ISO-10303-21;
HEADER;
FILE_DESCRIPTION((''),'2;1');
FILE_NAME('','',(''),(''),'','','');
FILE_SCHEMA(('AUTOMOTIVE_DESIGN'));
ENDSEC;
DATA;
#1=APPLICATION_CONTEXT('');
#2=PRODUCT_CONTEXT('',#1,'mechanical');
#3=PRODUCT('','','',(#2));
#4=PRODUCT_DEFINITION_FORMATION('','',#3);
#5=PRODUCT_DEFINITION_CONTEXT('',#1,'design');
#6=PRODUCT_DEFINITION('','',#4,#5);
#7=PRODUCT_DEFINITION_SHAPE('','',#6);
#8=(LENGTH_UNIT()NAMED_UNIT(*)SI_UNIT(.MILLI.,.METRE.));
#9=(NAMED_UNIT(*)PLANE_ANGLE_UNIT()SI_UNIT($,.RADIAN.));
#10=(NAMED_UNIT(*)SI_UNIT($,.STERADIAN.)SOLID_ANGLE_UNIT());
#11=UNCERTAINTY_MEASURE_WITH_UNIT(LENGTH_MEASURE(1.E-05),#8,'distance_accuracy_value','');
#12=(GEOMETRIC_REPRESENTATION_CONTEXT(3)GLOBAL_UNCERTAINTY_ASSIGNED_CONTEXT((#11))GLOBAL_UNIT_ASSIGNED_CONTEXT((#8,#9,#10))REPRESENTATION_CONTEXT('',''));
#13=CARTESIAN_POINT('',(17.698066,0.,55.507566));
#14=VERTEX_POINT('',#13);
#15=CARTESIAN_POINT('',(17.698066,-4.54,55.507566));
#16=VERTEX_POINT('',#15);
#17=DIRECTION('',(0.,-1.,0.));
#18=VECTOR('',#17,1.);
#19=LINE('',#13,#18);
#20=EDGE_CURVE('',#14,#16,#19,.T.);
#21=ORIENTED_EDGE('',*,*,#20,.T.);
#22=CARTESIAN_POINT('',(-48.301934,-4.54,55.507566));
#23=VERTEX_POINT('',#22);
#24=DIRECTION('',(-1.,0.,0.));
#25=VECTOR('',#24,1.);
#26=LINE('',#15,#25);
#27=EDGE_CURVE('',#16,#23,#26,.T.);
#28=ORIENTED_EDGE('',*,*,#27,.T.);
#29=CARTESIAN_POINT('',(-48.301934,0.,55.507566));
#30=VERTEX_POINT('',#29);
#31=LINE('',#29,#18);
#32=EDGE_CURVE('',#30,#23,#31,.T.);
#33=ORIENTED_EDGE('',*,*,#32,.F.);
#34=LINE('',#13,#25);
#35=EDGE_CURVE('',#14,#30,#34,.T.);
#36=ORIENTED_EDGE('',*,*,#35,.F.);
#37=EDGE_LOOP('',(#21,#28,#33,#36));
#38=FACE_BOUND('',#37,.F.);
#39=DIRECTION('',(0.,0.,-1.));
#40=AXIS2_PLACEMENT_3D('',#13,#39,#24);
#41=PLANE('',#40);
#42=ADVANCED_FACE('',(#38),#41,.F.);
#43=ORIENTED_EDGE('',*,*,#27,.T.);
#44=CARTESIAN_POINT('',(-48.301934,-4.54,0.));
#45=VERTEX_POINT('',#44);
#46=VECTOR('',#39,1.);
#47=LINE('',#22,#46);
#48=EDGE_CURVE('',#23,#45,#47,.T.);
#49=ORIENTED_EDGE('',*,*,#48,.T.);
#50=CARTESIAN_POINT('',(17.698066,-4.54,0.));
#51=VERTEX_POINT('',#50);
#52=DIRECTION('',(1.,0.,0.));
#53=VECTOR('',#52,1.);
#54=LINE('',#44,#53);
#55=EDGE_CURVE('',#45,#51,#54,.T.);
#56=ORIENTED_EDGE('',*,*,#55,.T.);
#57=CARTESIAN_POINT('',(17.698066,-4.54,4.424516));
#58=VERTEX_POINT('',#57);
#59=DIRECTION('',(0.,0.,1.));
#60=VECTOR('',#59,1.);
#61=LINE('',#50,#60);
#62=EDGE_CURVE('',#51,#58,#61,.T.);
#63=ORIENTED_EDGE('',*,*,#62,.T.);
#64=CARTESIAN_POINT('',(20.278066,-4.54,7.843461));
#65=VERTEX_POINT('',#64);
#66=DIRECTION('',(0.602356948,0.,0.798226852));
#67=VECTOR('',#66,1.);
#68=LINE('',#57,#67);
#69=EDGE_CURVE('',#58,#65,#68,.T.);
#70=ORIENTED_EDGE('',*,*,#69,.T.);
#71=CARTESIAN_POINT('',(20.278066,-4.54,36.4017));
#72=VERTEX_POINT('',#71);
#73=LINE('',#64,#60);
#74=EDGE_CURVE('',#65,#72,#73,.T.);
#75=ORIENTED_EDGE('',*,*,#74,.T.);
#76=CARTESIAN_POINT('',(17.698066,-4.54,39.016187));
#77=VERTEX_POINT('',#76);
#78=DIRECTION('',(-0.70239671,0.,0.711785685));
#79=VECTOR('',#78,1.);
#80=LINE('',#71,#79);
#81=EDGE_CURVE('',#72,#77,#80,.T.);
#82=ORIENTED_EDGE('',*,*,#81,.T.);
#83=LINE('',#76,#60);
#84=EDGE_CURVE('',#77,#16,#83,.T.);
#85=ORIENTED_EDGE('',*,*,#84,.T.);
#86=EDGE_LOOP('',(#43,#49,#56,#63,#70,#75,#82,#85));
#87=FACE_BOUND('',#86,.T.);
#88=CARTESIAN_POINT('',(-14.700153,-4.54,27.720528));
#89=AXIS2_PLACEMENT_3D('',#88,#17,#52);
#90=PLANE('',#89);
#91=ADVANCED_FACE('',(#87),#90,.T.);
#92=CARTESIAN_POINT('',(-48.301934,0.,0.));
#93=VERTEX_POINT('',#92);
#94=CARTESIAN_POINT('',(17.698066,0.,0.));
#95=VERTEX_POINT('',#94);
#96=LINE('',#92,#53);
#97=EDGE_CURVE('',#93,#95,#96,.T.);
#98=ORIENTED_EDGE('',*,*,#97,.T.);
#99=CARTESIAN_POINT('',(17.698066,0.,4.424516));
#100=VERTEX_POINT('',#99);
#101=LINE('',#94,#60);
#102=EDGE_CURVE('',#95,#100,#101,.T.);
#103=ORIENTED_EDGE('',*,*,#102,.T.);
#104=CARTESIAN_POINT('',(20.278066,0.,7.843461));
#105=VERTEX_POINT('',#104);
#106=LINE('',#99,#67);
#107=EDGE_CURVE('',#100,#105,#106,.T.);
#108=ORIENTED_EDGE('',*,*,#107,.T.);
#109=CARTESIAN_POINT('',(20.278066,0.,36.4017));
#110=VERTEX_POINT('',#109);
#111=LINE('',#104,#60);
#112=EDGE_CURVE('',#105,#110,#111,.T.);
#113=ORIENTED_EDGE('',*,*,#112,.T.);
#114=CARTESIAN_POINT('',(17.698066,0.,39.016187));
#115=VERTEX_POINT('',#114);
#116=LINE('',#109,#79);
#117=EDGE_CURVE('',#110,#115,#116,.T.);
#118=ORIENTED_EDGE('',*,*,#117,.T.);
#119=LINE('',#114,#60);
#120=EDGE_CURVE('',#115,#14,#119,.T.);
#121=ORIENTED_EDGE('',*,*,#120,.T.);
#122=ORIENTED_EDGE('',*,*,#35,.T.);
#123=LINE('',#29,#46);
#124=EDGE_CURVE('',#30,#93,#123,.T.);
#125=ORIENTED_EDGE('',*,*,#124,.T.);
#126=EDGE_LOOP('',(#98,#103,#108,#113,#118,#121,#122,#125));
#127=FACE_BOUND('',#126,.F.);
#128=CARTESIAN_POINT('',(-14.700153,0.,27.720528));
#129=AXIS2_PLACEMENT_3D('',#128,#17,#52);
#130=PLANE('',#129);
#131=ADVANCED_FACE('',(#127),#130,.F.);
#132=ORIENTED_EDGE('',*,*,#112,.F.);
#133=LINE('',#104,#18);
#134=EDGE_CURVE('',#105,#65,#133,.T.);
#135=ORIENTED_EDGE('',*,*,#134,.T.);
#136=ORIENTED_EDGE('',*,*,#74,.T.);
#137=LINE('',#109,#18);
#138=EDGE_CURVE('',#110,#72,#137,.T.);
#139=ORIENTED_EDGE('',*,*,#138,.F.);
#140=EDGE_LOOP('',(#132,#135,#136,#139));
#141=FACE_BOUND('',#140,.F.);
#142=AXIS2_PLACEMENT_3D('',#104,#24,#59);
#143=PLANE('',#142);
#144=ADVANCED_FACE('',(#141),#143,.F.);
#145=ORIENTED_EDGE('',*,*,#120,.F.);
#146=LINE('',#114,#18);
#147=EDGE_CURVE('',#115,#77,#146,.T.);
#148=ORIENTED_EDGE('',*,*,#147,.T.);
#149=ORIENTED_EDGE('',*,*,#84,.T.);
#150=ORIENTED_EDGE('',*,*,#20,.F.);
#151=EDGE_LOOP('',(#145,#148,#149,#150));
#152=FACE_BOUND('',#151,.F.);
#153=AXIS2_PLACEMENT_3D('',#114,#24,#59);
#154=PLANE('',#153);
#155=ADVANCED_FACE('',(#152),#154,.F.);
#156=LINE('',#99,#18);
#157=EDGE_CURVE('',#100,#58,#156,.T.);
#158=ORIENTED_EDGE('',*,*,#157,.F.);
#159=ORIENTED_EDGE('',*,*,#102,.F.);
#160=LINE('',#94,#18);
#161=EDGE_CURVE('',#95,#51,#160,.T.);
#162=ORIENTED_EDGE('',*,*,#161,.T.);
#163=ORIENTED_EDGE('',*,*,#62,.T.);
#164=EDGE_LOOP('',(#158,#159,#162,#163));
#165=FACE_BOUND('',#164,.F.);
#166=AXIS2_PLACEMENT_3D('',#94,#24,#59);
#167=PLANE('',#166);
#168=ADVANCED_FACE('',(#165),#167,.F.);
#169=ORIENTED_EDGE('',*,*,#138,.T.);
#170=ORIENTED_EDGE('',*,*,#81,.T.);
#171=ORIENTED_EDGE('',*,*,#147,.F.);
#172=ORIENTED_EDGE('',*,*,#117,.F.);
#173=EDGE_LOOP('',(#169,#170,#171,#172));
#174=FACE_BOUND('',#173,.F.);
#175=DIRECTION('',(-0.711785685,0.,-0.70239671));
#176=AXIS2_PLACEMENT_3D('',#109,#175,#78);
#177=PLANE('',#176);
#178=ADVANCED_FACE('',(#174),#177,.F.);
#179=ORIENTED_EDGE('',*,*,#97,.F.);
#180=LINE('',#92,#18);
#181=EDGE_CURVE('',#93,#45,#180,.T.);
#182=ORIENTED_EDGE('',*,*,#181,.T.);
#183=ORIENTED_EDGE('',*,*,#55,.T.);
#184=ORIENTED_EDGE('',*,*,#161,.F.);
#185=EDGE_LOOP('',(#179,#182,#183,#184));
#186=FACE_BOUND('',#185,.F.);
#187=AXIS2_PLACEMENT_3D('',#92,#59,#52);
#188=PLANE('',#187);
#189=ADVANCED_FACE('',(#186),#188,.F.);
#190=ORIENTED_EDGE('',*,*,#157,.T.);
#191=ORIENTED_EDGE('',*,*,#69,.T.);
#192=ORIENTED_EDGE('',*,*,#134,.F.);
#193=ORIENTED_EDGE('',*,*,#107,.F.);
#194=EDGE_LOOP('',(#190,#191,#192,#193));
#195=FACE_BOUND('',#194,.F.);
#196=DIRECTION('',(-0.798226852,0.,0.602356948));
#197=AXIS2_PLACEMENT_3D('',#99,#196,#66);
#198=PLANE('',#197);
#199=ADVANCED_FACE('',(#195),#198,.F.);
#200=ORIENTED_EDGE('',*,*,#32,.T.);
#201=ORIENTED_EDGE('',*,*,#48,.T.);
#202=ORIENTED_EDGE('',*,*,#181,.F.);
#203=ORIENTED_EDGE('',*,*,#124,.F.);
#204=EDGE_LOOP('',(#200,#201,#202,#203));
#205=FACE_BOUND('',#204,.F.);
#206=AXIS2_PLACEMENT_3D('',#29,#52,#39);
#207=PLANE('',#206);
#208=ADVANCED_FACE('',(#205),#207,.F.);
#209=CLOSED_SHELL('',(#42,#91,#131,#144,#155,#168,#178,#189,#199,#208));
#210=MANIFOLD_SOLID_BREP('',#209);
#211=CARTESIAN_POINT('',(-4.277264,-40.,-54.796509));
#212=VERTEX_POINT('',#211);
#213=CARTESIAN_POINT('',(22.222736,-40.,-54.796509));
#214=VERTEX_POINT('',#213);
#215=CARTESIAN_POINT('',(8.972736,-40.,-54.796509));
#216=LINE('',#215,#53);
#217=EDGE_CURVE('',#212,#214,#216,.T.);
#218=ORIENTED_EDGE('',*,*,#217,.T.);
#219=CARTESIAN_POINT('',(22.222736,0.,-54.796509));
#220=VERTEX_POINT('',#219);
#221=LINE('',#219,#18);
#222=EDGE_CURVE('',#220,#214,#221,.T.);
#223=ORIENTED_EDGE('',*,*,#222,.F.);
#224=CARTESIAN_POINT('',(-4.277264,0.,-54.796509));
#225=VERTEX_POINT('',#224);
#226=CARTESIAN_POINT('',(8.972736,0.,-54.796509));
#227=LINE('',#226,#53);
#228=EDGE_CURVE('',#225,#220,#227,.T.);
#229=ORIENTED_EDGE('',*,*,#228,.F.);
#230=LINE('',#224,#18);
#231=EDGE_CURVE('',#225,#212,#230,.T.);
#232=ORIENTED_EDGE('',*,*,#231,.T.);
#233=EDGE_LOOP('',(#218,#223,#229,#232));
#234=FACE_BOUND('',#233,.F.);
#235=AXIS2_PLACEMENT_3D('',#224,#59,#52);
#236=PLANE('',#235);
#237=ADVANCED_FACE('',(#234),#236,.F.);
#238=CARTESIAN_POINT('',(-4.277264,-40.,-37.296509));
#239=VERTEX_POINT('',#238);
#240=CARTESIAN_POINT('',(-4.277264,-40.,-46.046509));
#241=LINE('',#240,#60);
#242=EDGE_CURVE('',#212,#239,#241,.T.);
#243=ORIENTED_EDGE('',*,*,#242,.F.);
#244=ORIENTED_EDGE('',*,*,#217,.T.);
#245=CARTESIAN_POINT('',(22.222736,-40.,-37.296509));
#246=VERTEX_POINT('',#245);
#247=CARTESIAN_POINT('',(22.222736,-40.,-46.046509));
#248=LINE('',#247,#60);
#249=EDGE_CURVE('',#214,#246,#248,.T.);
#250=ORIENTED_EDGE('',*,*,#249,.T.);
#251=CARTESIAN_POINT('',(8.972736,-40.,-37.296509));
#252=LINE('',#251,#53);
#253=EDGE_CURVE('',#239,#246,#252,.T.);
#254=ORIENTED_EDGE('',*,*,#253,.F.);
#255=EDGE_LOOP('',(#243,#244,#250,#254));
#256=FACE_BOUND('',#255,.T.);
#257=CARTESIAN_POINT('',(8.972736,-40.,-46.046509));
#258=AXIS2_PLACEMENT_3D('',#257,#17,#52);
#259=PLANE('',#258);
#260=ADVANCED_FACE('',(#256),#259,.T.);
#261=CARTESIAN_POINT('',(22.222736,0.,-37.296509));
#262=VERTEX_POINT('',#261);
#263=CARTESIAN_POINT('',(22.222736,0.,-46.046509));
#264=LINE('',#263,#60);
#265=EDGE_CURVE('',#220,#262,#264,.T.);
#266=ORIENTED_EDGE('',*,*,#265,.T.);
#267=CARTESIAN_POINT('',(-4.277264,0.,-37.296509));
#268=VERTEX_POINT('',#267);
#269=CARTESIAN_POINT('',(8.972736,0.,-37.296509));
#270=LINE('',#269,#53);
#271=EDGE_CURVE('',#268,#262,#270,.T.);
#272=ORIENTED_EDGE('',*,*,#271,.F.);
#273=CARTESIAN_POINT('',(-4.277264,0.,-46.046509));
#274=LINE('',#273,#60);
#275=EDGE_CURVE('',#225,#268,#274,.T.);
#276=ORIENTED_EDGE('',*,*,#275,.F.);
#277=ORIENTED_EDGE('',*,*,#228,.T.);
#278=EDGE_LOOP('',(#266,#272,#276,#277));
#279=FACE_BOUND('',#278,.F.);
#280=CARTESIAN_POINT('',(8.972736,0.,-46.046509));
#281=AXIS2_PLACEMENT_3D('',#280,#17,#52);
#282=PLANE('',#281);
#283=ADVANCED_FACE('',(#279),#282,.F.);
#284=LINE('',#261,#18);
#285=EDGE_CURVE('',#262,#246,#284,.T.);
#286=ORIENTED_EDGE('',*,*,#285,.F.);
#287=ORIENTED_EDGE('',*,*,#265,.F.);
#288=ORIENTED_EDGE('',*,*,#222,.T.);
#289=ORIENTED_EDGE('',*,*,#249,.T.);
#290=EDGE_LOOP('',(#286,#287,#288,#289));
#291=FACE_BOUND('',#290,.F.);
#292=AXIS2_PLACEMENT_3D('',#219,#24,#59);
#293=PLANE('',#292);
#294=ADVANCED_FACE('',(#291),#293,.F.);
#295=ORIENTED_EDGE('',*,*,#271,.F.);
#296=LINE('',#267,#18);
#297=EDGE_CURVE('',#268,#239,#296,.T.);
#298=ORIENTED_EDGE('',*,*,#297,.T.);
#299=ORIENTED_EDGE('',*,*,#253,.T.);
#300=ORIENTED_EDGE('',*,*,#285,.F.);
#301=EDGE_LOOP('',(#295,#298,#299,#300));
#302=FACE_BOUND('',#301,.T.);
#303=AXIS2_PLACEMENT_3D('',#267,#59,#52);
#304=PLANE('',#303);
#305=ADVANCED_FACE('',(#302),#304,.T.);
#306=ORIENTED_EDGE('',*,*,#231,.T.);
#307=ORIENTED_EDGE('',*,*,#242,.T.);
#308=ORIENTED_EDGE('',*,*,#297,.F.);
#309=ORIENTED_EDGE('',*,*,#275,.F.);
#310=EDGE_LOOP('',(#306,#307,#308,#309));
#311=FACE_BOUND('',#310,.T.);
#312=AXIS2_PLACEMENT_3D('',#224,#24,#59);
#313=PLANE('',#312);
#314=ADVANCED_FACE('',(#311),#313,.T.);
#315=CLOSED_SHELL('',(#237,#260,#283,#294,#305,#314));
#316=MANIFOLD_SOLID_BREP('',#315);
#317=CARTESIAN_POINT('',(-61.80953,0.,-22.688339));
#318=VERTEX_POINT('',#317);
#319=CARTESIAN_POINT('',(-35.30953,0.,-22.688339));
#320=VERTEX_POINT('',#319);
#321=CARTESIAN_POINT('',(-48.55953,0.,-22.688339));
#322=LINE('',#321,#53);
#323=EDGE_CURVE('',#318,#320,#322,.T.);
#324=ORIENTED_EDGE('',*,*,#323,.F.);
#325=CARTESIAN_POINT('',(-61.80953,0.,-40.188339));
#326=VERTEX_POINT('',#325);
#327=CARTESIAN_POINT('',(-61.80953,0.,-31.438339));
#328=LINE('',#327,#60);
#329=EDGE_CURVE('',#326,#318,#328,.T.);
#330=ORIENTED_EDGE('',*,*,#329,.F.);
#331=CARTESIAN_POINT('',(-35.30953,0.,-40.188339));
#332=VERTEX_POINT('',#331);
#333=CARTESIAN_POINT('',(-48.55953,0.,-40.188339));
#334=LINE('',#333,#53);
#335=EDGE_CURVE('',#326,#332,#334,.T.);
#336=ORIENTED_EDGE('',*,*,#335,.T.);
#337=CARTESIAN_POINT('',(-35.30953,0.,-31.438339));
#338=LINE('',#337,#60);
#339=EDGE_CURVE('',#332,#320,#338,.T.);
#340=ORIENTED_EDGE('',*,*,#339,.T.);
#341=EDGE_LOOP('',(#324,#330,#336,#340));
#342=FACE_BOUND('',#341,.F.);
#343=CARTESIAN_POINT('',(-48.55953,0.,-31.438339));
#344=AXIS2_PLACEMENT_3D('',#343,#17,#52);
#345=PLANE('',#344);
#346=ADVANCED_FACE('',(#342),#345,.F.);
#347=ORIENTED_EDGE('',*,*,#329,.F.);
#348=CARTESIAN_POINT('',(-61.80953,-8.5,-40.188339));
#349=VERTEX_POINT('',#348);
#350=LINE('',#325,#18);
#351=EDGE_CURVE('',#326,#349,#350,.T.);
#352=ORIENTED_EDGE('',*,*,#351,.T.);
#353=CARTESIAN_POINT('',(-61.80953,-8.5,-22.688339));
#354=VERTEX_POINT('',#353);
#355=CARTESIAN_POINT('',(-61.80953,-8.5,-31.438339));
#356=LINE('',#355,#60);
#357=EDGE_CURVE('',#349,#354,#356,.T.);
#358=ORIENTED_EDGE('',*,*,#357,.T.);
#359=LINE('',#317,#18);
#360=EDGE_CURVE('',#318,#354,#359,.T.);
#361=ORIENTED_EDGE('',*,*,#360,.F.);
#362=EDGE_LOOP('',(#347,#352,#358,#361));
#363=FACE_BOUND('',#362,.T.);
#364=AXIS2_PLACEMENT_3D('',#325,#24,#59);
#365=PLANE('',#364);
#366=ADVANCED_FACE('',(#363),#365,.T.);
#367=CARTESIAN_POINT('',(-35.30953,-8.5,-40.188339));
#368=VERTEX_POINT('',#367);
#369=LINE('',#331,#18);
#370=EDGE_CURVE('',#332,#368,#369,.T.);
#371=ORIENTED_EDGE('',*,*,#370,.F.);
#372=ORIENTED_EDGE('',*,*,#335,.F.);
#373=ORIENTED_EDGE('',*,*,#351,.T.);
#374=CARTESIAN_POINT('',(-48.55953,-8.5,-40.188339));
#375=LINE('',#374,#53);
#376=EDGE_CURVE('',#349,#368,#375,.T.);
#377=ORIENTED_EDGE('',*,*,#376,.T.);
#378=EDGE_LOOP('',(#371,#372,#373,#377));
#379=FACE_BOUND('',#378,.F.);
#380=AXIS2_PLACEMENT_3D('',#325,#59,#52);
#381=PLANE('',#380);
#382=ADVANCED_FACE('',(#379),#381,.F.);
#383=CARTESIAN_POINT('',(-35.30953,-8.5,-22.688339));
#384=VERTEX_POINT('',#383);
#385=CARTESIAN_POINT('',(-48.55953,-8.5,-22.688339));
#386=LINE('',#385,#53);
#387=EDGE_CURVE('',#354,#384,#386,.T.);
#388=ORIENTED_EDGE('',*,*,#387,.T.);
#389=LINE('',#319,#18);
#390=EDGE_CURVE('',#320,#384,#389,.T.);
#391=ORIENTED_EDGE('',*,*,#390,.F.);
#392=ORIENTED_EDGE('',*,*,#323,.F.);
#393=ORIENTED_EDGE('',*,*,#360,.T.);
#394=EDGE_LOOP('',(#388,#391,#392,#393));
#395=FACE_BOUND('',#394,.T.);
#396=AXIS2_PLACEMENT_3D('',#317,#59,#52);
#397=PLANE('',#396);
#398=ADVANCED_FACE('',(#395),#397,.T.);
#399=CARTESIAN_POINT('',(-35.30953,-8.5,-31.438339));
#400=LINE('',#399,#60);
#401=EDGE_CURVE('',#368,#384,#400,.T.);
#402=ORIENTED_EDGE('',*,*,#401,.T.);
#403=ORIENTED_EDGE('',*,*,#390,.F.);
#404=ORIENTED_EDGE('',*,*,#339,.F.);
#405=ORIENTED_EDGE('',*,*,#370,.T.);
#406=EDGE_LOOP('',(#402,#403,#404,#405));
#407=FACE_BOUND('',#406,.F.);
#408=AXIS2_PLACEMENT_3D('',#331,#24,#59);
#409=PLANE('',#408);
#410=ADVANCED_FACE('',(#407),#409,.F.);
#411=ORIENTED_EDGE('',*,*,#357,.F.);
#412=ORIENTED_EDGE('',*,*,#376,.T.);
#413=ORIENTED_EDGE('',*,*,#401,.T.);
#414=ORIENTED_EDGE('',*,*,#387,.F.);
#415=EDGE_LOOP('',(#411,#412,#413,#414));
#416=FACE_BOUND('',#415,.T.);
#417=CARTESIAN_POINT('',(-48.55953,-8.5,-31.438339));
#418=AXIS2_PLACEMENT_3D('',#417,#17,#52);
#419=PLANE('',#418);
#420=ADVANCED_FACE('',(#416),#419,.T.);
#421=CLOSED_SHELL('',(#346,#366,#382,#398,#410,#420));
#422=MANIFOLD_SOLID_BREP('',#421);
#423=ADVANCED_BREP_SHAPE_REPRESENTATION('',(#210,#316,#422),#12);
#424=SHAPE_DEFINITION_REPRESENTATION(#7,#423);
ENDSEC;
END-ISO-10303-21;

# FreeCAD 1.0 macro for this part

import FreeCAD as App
import Part
import Sketcher
Q = App.Units.Quantity

doc = App.newDocument("Part")
body = doc.addObject("PartDesign::Body", "Body")

# Sketch on XZ plane
sketch1 = body.newObject("Sketcher::SketchObject", "Sketch")
sketch1.AttachmentSupport = (doc.getObject("XZ_Plane"), [""])
sketch1.MapMode = "FlatFace"
sketch1.addGeometry(Part.LineSegment(App.Vector(-48.301934, 55.507566, 0), App.Vector(-48.301934, 0, 0)), False)
sketch1.addGeometry(Part.LineSegment(App.Vector(-48.301934, 0, 0), App.Vector(17.698066, 0, 0)), False)
sketch1.addGeometry(Part.LineSegment(App.Vector(17.698066, 0, 0), App.Vector(17.698066, 4.424516, 0)), False)
sketch1.addGeometry(Part.LineSegment(App.Vector(17.698066, 4.424516, 0), App.Vector(20.278066, 7.843461, 0)), False)
sketch1.addGeometry(Part.LineSegment(App.Vector(20.278066, 7.843461, 0), App.Vector(20.278066, 36.4017, 0)), False)
sketch1.addGeometry(Part.LineSegment(App.Vector(20.278066, 36.4017, 0), App.Vector(17.698066, 39.016187, 0)), False)
sketch1.addGeometry(Part.LineSegment(App.Vector(17.698066, 39.016187, 0), App.Vector(17.698066, 55.507566, 0)), False)
sketch1.addGeometry(Part.LineSegment(App.Vector(17.698066, 55.507566, 0), App.Vector(-48.301934, 55.507566, 0)), False)
sketch1.addConstraint(Sketcher.Constraint("Coincident", 0, 2, 1, 1))
sketch1.addConstraint(Sketcher.Constraint("Coincident", 1, 2, 2, 1))
sketch1.addConstraint(Sketcher.Constraint("Coincident", 2, 2, 3, 1))
sketch1.addConstraint(Sketcher.Constraint("Coincident", 3, 2, 4, 1))
sketch1.addConstraint(Sketcher.Constraint("Coincident", 4, 2, 5, 1))
sketch1.addConstraint(Sketcher.Constraint("Coincident", 5, 2, 6, 1))
sketch1.addConstraint(Sketcher.Constraint("Coincident", 6, 2, 7, 1))
sketch1.addConstraint(Sketcher.Constraint("Coincident", 7, 2, 0, 1))
sketch1.addConstraint(Sketcher.Constraint("Vertical", 0))
sketch1.addConstraint(Sketcher.Constraint("Horizontal", 1))
sketch1.addConstraint(Sketcher.Constraint("Vertical", 2))
sketch1.addConstraint(Sketcher.Constraint("Vertical", 4))
sketch1.addConstraint(Sketcher.Constraint("Vertical", 6))
sketch1.addConstraint(Sketcher.Constraint("Horizontal", 7))
sketch1.addConstraint(Sketcher.Constraint("PointOnObject", 0, 2, -1))
sketch1.addConstraint(Sketcher.Constraint("Vertical", 2, 2, 5, 2))
sketch1.addConstraint(Sketcher.Constraint("DistanceX", 1, 1, 1, 2, Q("66 mm")))
sketch1.addConstraint(Sketcher.Constraint("DistanceX", 2, 2, 3, 2, Q("2.58 mm")))
sketch1.addConstraint(Sketcher.Constraint("DistanceY", 4, 1, 4, 2, Q("28.558239 mm")))
sketch1.addConstraint(Sketcher.Constraint("DistanceY", 6, 1, 6, 2, Q("16.491379 mm")))
sketch1.addConstraint(Sketcher.Constraint("DistanceY", -1, 1, 4, 2, Q("36.4017 mm")))
sketch1.addConstraint(Sketcher.Constraint("DistanceY", 0, 2, 0, 1, Q("55.507566 mm")))
sketch1.addConstraint(Sketcher.Constraint("DistanceY", 2, 1, 2, 2, Q("4.424516 mm")))
sketch1.addConstraint(Sketcher.Constraint("DistanceX", 0, 2, -1, 1, Q("48.301934 mm")))
pad1 = body.newObject("PartDesign::Pad", "Pad")
pad1.Profile = sketch1
pad1.Length = 4.54
body2 = doc.addObject("PartDesign::Body", "Body001")

# Sketch on XZ plane
sketch2 = body2.newObject("Sketcher::SketchObject", "Sketch001")
sketch2.AttachmentSupport = (doc.getObject("XZ_Plane001"), [""])
sketch2.MapMode = "FlatFace"
sketch2.addGeometry(Part.LineSegment(App.Vector(-4.277264, -37.296509, 0), App.Vector(-4.277264, -54.796509, 0)), False)
sketch2.addGeometry(Part.LineSegment(App.Vector(-4.277264, -54.796509, 0), App.Vector(22.222736, -54.796509, 0)), False)
sketch2.addGeometry(Part.LineSegment(App.Vector(22.222736, -54.796509, 0), App.Vector(22.222736, -37.296509, 0)), False)
sketch2.addGeometry(Part.LineSegment(App.Vector(22.222736, -37.296509, 0), App.Vector(-4.277264, -37.296509, 0)), False)
sketch2.addConstraint(Sketcher.Constraint("Coincident", 0, 2, 1, 1))
sketch2.addConstraint(Sketcher.Constraint("Coincident", 1, 2, 2, 1))
sketch2.addConstraint(Sketcher.Constraint("Coincident", 2, 2, 3, 1))
sketch2.addConstraint(Sketcher.Constraint("Coincident", 3, 2, 0, 1))
sketch2.addConstraint(Sketcher.Constraint("Vertical", 0))
sketch2.addConstraint(Sketcher.Constraint("Horizontal", 1))
sketch2.addConstraint(Sketcher.Constraint("Vertical", 2))
sketch2.addConstraint(Sketcher.Constraint("Horizontal", 3))
sketch2.addConstraint(Sketcher.Constraint("DistanceX", 1, 1, 1, 2, Q("26.5 mm")))
sketch2.addConstraint(Sketcher.Constraint("DistanceY", 0, 2, 0, 1, Q("17.5 mm")))
sketch2.addConstraint(Sketcher.Constraint("DistanceY", 0, 2, -1, 1, Q("54.796509 mm")))
sketch2.addConstraint(Sketcher.Constraint("DistanceX", 0, 2, -1, 1, Q("4.277264 mm")))
pad2 = body2.newObject("PartDesign::Pad", "Pad001")
pad2.Profile = sketch2
pad2.Length = 40
body3 = doc.addObject("PartDesign::Body", "Body002")

# Sketch on XZ plane
sketch3 = body3.newObject("Sketcher::SketchObject", "Sketch002")
sketch3.AttachmentSupport = (doc.getObject("XZ_Plane002"), [""])
sketch3.MapMode = "FlatFace"
sketch3.addGeometry(Part.LineSegment(App.Vector(-61.80953, -22.688339, 0), App.Vector(-61.80953, -40.188339, 0)), False)
sketch3.addGeometry(Part.LineSegment(App.Vector(-61.80953, -40.188339, 0), App.Vector(-35.30953, -40.188339, 0)), False)
sketch3.addGeometry(Part.LineSegment(App.Vector(-35.30953, -40.188339, 0), App.Vector(-35.30953, -22.688339, 0)), False)
sketch3.addGeometry(Part.LineSegment(App.Vector(-35.30953, -22.688339, 0), App.Vector(-61.80953, -22.688339, 0)), False)
sketch3.addConstraint(Sketcher.Constraint("Coincident", 0, 2, 1, 1))
sketch3.addConstraint(Sketcher.Constraint("Coincident", 1, 2, 2, 1))
sketch3.addConstraint(Sketcher.Constraint("Coincident", 2, 2, 3, 1))
sketch3.addConstraint(Sketcher.Constraint("Coincident", 3, 2, 0, 1))
sketch3.addConstraint(Sketcher.Constraint("Vertical", 0))
sketch3.addConstraint(Sketcher.Constraint("Horizontal", 1))
sketch3.addConstraint(Sketcher.Constraint("Vertical", 2))
sketch3.addConstraint(Sketcher.Constraint("Horizontal", 3))
sketch3.addConstraint(Sketcher.Constraint("DistanceX", 1, 1, 1, 2, Q("26.5 mm")))
sketch3.addConstraint(Sketcher.Constraint("DistanceY", 0, 2, 0, 1, Q("17.5 mm")))
sketch3.addConstraint(Sketcher.Constraint("DistanceX", 0, 2, -1, 1, Q("61.80953 mm")))
sketch3.addConstraint(Sketcher.Constraint("DistanceY", 0, 2, -1, 1, Q("40.188339 mm")))
pad3 = body3.newObject("PartDesign::Pad", "Pad002")
pad3.Profile = sketch3
pad3.Length = 8.5

doc.recompute()
